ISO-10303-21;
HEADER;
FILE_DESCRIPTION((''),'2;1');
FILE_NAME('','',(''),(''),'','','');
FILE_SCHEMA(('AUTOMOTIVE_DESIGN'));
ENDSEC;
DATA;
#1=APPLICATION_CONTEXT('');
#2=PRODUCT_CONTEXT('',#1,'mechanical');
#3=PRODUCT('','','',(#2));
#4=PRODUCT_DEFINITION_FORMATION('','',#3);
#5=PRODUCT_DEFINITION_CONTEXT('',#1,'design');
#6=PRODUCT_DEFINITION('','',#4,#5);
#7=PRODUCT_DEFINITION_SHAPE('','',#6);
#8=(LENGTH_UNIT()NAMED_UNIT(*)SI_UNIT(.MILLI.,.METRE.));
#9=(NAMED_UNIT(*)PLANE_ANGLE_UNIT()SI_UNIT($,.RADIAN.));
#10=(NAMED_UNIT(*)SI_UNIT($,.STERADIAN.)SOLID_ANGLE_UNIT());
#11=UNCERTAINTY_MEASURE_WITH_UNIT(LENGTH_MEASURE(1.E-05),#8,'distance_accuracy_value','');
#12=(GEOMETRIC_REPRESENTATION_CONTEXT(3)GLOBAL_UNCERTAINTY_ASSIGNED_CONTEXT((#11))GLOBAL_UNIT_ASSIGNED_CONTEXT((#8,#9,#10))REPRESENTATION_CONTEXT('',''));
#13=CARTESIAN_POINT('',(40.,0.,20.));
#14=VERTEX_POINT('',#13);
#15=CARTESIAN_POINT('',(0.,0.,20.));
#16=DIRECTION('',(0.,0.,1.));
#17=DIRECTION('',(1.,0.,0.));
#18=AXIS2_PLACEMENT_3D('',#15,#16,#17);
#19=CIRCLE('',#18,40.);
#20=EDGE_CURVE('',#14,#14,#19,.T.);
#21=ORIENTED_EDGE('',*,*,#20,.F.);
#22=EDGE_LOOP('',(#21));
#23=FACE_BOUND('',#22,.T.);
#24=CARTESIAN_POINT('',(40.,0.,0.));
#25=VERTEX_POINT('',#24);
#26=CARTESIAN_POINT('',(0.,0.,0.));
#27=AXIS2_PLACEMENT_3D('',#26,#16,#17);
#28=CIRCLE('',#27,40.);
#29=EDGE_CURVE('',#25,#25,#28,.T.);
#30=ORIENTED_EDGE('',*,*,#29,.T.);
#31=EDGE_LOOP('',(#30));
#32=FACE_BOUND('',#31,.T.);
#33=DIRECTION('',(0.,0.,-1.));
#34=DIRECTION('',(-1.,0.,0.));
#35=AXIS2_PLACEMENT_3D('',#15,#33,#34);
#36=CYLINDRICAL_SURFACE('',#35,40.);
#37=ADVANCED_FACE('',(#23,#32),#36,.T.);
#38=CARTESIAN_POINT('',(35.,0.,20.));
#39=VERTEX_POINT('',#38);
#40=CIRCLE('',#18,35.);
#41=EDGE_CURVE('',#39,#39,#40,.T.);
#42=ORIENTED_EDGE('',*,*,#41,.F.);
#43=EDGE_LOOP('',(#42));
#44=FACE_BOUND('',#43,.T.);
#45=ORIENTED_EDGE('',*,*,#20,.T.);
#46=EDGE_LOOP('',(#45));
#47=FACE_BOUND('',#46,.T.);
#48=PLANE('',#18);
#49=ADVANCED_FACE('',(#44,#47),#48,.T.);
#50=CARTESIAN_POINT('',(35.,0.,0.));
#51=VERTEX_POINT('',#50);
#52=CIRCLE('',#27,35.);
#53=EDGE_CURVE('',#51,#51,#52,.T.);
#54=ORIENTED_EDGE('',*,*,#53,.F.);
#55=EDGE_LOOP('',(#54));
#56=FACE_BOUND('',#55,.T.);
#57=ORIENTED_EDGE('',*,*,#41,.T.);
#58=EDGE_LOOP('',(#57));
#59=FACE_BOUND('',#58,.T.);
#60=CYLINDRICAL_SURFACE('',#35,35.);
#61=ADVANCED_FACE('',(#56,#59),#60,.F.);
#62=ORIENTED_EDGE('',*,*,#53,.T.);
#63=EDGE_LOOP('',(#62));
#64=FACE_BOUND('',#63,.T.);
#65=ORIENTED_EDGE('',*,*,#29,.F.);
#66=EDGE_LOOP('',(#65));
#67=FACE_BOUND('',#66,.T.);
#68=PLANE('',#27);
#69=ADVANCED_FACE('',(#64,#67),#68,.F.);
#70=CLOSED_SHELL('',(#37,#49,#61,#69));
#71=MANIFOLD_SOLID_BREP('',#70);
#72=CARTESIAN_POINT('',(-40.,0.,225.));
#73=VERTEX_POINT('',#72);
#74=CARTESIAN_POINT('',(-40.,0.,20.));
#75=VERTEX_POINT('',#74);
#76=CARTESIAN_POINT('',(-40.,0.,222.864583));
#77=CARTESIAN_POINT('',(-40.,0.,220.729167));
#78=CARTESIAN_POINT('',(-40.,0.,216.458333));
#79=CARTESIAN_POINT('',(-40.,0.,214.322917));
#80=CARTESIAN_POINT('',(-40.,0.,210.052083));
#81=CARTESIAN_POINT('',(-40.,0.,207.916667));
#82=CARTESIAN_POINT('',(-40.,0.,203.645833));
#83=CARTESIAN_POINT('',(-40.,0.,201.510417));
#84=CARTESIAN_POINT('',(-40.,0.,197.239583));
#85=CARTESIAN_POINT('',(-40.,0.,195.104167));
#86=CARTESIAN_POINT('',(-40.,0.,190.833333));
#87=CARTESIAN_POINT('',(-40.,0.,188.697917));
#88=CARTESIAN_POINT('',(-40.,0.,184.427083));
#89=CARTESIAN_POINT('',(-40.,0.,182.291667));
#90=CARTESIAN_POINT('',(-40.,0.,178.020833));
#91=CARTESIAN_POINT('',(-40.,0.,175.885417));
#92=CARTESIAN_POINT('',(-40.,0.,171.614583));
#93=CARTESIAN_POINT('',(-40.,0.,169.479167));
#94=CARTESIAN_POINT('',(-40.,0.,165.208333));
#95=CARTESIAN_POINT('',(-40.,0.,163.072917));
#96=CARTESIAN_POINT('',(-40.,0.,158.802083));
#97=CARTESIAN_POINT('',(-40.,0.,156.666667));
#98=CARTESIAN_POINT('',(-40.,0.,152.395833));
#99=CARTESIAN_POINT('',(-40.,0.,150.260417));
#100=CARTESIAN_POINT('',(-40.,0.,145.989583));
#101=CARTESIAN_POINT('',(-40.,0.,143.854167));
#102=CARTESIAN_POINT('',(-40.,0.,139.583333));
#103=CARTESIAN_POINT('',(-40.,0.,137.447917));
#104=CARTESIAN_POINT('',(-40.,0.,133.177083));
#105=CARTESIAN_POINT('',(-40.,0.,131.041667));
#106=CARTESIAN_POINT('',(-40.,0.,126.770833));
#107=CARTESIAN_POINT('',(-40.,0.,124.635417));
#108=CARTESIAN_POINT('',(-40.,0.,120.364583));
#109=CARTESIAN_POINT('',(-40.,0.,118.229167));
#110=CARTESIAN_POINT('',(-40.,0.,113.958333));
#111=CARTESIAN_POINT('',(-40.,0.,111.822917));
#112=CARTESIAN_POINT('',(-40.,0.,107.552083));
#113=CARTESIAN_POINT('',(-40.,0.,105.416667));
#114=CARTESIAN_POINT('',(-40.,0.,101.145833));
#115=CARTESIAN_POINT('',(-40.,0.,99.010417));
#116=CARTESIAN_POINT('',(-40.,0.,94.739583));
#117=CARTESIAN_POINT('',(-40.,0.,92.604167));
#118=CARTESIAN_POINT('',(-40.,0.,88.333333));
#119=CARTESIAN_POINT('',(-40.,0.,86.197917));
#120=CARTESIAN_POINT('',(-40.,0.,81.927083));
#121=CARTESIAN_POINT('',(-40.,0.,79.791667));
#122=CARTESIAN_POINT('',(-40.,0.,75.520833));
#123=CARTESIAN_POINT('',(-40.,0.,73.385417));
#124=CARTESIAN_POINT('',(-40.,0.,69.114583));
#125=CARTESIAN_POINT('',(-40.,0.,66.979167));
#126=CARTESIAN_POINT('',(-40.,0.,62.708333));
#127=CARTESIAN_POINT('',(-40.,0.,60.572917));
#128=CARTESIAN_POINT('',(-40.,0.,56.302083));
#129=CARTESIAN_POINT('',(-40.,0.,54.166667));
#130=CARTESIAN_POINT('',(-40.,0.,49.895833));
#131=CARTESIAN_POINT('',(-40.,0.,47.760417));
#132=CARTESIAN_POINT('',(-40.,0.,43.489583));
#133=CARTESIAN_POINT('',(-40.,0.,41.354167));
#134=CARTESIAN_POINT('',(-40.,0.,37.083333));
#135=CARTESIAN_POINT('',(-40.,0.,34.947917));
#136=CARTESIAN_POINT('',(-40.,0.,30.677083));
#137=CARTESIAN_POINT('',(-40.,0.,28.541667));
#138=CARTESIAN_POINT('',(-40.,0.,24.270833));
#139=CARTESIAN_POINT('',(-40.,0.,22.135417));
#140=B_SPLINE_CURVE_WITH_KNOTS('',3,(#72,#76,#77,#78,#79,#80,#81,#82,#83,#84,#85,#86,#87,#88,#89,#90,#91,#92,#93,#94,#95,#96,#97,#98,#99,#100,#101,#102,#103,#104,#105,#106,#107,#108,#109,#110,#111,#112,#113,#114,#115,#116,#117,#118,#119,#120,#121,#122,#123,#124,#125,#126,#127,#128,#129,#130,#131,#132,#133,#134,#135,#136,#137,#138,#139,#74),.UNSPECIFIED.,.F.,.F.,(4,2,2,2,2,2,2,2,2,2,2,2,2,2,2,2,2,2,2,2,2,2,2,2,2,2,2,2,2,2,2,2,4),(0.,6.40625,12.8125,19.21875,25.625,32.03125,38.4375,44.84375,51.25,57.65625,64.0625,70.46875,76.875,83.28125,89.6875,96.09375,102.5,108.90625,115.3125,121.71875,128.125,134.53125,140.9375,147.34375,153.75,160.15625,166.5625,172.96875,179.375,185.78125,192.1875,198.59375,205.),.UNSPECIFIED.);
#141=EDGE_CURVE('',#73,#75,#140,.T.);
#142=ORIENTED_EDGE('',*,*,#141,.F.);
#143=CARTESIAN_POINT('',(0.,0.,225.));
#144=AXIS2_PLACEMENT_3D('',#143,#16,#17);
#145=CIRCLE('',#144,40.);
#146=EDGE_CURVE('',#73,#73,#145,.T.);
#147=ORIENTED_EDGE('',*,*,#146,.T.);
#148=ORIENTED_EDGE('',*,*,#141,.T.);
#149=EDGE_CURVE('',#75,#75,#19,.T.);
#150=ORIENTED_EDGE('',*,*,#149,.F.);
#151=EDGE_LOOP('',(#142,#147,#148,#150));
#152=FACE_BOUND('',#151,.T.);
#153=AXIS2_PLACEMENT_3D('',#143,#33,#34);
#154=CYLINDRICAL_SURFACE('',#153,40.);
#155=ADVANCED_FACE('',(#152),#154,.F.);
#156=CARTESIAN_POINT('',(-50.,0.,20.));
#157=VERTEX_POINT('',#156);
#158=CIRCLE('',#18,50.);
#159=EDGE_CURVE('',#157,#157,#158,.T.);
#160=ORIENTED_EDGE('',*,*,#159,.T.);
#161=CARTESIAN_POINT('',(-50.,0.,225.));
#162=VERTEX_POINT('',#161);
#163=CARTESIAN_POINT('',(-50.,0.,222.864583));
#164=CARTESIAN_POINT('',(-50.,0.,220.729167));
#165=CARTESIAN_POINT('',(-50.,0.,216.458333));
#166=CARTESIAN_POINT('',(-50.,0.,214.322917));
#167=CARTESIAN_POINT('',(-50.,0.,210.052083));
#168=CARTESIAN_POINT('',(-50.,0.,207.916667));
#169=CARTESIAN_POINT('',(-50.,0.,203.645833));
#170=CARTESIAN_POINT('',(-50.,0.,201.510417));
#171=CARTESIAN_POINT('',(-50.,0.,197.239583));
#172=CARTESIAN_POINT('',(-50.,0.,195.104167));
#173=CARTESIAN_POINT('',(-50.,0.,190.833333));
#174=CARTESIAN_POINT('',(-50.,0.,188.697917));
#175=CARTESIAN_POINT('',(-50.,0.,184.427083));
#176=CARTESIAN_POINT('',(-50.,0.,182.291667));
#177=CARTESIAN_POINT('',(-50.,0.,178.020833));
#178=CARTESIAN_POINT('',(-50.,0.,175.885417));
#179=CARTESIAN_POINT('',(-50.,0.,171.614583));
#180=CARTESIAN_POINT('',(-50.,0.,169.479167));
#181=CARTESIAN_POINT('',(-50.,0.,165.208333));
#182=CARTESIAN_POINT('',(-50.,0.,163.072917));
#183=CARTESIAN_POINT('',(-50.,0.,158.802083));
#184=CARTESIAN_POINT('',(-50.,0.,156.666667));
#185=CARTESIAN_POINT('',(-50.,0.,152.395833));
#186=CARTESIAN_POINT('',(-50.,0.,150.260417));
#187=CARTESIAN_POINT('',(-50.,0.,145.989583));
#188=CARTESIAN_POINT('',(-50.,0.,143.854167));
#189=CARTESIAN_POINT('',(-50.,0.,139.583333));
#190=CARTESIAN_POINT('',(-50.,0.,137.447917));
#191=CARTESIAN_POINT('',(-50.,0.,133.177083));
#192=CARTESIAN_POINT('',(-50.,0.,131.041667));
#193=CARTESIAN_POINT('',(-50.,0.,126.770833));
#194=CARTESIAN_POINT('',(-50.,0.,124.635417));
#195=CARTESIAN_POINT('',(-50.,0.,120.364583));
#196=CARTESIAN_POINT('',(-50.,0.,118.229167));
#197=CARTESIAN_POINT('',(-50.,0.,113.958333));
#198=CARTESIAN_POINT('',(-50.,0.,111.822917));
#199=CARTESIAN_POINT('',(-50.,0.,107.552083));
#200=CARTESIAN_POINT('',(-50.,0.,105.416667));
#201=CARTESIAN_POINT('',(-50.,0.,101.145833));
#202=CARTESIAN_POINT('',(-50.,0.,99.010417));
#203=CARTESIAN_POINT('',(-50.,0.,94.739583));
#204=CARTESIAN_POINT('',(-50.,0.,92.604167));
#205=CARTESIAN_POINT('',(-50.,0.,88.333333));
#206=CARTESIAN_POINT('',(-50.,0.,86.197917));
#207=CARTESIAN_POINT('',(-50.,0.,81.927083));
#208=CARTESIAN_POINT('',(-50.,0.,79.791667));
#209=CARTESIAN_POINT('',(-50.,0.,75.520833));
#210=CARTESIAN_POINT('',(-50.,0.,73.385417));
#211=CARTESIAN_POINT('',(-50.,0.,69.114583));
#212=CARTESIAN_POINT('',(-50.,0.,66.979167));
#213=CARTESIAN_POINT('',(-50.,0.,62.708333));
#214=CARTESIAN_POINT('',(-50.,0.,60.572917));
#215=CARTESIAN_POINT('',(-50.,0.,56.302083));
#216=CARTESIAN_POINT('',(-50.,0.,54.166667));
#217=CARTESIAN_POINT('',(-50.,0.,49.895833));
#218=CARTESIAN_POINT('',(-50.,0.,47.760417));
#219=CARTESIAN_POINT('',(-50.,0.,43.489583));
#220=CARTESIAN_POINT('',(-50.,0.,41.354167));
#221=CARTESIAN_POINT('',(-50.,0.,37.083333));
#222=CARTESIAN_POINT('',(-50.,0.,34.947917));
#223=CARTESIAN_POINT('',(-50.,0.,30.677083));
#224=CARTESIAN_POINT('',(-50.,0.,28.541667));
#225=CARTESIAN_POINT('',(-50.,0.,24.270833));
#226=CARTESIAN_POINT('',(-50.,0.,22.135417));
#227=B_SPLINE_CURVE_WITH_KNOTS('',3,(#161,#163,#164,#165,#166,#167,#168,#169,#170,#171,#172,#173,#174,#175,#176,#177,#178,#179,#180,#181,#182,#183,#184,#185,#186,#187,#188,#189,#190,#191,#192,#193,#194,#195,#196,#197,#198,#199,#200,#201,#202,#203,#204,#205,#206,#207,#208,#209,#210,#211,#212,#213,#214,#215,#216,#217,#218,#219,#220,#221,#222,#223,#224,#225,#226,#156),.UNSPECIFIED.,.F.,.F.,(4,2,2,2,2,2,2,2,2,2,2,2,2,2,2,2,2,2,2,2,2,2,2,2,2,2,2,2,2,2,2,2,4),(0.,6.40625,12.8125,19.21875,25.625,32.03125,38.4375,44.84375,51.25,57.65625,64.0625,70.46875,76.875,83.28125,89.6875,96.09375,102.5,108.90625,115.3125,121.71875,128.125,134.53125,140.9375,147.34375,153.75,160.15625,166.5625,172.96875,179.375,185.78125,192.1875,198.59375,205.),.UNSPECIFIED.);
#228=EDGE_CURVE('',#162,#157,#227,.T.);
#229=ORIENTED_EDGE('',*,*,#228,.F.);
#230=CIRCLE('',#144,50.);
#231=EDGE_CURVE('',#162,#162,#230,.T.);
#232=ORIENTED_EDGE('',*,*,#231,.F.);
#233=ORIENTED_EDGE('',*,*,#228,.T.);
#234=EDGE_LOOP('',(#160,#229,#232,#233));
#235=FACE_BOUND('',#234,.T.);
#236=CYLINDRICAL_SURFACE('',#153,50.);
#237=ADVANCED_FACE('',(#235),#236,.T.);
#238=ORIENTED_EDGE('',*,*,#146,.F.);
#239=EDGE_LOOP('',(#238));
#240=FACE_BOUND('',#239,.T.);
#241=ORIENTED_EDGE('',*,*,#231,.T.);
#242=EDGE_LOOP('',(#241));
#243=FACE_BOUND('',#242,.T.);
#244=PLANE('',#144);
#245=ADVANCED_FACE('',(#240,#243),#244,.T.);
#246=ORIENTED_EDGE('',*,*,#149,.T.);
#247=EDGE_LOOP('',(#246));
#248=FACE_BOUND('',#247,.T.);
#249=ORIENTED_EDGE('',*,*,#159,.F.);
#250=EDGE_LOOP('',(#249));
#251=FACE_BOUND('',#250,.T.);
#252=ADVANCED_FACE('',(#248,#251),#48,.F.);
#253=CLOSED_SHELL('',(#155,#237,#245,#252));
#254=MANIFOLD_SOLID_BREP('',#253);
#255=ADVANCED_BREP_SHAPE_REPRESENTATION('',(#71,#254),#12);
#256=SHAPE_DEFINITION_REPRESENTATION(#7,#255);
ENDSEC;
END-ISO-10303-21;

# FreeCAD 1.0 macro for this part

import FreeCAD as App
import Part
import Sketcher
from FreeCAD import Vector

doc = App.newDocument("Part")
body = doc.addObject("PartDesign::Body", "Body")

# Sketch on XY plane
sketch1 = body.newObject("Sketcher::SketchObject", "Sketch")
sketch1.AttachmentSupport = (doc.getObject("XY_Plane"), [""])
sketch1.MapMode = "FlatFace"
sketch1.addGeometry([
    Part.Circle(Vector(0, 0, 0), Vector(0, 0, 1), 40),
    Part.Circle(Vector(0, 0, 0), Vector(0, 0, 1), 35),
], False)
sketch1.addConstraint([
    Sketcher.Constraint("Coincident", 0, 3, -1, 1),
    Sketcher.Constraint("Coincident", 1, 3, -1, 1),
    Sketcher.Constraint("Diameter", 0, 80.0),
    Sketcher.Constraint("Diameter", 1, 70.0),
])
pad1 = body.newObject("PartDesign::Pad", "Pad")
pad1.Profile = sketch1
pad1.Length = 20
body2 = doc.addObject("PartDesign::Body", "Body001")

# Sketch on XY plane
sketch2 = body2.newObject("Sketcher::SketchObject", "Sketch001")
sketch2.AttachmentSupport = (doc.getObject("XY_Plane001"), [""])
sketch2.MapMode = "FlatFace"
sketch2.AttachmentOffset = App.Placement(Vector(0, 0, 20), App.Rotation())
sketch2.addGeometry([
    Part.Circle(Vector(0, 0, 0), Vector(0, 0, 1), 50),
    Part.Circle(Vector(0, 0, 0), Vector(0, 0, 1), 40),
], False)
sketch2.addConstraint([
    Sketcher.Constraint("Coincident", 0, 3, -1, 1),
    Sketcher.Constraint("Coincident", 1, 3, -1, 1),
    Sketcher.Constraint("Diameter", 0, 100.0),
    Sketcher.Constraint("Diameter", 1, 80.0),
])
pad2 = body2.newObject("PartDesign::Pad", "Pad001")
pad2.Profile = sketch2
pad2.Length = 205

doc.recompute()
